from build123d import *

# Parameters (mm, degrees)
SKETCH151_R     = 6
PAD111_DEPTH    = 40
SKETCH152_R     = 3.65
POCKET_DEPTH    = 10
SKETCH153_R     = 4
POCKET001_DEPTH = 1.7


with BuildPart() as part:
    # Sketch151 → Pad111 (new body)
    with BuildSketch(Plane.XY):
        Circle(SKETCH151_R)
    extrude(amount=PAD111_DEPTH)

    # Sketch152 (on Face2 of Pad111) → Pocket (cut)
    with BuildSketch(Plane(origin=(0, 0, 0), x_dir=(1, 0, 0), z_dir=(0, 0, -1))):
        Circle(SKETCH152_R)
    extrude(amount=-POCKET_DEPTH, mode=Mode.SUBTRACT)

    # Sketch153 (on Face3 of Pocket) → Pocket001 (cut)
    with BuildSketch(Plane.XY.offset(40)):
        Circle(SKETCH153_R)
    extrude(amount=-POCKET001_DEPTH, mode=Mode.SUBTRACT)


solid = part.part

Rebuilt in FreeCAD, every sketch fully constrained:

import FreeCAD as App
import Part
import Sketcher
from FreeCAD import Vector
Q = App.Units.Quantity

doc = App.newDocument("Part")
params = doc.addObject("Spreadsheet::Sheet", "Params")
for row, (alias, value) in enumerate([
    ("sketch1_diameter", "12 mm"),
    ("pad1_length", "40 mm"),
    ("sketch2_diameter", "7.3 mm"),
    ("pocket1_length", "10 mm"),
    ("sketch3_diameter", "8 mm"),
    ("pocket2_length", "1.7 mm"),
], start=1):
    params.set(f"A{row}", alias)
    params.set(f"B{row}", "=" + value)
    params.setAlias(f"B{row}", alias)

body = doc.addObject("PartDesign::Body", "Body")

# Sketch on XY plane
sketch1 = doc.addObject("Sketcher::SketchObject", "Sketch")
body.addObject(sketch1)
sketch1.AttachmentSupport = (doc.XY_Plane, [""])
sketch1.MapMode = "FlatFace"
sketch1.addGeometry(Part.Circle(Vector(0, 0, 0), Vector(0, 0, 1), 6), False)
sketch1.addConstraint(Sketcher.Constraint("Coincident", 0, 3, -1, 1))
sketch1.addConstraint(Sketcher.Constraint("Diameter", 0, Q("12 mm")))
sketch1.setExpression("Constraints[1]", "Params.sketch1_diameter")
pad1 = doc.addObject("PartDesign::Pad", "Pad")
body.addObject(pad1)
pad1.Profile = sketch1
pad1.setExpression("Length", "Params.pad1_length")

# Sketch on XY plane
sketch2 = doc.addObject("Sketcher::SketchObject", "Sketch001")
body.addObject(sketch2)
sketch2.AttachmentSupport = (doc.XY_Plane, [""])
sketch2.MapMode = "FlatFace"
sketch2.addGeometry(Part.Circle(Vector(0, 0, 0), Vector(0, 0, 1), 3.6), False)
sketch2.addConstraint(Sketcher.Constraint("Coincident", 0, 3, -1, 1))
sketch2.addConstraint(Sketcher.Constraint("Diameter", 0, Q("7.3 mm")))
sketch2.setExpression("Constraints[1]", "Params.sketch2_diameter")
pocket1 = doc.addObject("PartDesign::Pocket", "Pocket")
body.addObject(pocket1)
pocket1.Profile = sketch2
pocket1.setExpression("Length", "Params.pocket1_length")
pocket1.Reversed = True

# Sketch on XY plane
sketch3 = doc.addObject("Sketcher::SketchObject", "Sketch002")
body.addObject(sketch3)
sketch3.AttachmentSupport = (doc.XY_Plane, [""])
sketch3.MapMode = "FlatFace"
sketch3.AttachmentOffset = App.Placement(Vector(0, 0, 40), App.Rotation())
sketch3.addGeometry(Part.Circle(Vector(0, 0, 0), Vector(0, 0, 1), 4), False)
sketch3.addConstraint(Sketcher.Constraint("Coincident", 0, 3, -1, 1))
sketch3.addConstraint(Sketcher.Constraint("Diameter", 0, Q("8 mm")))
sketch3.setExpression("Constraints[1]", "Params.sketch3_diameter")
pocket2 = doc.addObject("PartDesign::Pocket", "Pocket001")
body.addObject(pocket2)
pocket2.Profile = sketch3
pocket2.setExpression("Length", "Params.pocket2_length")

doc.recompute()
